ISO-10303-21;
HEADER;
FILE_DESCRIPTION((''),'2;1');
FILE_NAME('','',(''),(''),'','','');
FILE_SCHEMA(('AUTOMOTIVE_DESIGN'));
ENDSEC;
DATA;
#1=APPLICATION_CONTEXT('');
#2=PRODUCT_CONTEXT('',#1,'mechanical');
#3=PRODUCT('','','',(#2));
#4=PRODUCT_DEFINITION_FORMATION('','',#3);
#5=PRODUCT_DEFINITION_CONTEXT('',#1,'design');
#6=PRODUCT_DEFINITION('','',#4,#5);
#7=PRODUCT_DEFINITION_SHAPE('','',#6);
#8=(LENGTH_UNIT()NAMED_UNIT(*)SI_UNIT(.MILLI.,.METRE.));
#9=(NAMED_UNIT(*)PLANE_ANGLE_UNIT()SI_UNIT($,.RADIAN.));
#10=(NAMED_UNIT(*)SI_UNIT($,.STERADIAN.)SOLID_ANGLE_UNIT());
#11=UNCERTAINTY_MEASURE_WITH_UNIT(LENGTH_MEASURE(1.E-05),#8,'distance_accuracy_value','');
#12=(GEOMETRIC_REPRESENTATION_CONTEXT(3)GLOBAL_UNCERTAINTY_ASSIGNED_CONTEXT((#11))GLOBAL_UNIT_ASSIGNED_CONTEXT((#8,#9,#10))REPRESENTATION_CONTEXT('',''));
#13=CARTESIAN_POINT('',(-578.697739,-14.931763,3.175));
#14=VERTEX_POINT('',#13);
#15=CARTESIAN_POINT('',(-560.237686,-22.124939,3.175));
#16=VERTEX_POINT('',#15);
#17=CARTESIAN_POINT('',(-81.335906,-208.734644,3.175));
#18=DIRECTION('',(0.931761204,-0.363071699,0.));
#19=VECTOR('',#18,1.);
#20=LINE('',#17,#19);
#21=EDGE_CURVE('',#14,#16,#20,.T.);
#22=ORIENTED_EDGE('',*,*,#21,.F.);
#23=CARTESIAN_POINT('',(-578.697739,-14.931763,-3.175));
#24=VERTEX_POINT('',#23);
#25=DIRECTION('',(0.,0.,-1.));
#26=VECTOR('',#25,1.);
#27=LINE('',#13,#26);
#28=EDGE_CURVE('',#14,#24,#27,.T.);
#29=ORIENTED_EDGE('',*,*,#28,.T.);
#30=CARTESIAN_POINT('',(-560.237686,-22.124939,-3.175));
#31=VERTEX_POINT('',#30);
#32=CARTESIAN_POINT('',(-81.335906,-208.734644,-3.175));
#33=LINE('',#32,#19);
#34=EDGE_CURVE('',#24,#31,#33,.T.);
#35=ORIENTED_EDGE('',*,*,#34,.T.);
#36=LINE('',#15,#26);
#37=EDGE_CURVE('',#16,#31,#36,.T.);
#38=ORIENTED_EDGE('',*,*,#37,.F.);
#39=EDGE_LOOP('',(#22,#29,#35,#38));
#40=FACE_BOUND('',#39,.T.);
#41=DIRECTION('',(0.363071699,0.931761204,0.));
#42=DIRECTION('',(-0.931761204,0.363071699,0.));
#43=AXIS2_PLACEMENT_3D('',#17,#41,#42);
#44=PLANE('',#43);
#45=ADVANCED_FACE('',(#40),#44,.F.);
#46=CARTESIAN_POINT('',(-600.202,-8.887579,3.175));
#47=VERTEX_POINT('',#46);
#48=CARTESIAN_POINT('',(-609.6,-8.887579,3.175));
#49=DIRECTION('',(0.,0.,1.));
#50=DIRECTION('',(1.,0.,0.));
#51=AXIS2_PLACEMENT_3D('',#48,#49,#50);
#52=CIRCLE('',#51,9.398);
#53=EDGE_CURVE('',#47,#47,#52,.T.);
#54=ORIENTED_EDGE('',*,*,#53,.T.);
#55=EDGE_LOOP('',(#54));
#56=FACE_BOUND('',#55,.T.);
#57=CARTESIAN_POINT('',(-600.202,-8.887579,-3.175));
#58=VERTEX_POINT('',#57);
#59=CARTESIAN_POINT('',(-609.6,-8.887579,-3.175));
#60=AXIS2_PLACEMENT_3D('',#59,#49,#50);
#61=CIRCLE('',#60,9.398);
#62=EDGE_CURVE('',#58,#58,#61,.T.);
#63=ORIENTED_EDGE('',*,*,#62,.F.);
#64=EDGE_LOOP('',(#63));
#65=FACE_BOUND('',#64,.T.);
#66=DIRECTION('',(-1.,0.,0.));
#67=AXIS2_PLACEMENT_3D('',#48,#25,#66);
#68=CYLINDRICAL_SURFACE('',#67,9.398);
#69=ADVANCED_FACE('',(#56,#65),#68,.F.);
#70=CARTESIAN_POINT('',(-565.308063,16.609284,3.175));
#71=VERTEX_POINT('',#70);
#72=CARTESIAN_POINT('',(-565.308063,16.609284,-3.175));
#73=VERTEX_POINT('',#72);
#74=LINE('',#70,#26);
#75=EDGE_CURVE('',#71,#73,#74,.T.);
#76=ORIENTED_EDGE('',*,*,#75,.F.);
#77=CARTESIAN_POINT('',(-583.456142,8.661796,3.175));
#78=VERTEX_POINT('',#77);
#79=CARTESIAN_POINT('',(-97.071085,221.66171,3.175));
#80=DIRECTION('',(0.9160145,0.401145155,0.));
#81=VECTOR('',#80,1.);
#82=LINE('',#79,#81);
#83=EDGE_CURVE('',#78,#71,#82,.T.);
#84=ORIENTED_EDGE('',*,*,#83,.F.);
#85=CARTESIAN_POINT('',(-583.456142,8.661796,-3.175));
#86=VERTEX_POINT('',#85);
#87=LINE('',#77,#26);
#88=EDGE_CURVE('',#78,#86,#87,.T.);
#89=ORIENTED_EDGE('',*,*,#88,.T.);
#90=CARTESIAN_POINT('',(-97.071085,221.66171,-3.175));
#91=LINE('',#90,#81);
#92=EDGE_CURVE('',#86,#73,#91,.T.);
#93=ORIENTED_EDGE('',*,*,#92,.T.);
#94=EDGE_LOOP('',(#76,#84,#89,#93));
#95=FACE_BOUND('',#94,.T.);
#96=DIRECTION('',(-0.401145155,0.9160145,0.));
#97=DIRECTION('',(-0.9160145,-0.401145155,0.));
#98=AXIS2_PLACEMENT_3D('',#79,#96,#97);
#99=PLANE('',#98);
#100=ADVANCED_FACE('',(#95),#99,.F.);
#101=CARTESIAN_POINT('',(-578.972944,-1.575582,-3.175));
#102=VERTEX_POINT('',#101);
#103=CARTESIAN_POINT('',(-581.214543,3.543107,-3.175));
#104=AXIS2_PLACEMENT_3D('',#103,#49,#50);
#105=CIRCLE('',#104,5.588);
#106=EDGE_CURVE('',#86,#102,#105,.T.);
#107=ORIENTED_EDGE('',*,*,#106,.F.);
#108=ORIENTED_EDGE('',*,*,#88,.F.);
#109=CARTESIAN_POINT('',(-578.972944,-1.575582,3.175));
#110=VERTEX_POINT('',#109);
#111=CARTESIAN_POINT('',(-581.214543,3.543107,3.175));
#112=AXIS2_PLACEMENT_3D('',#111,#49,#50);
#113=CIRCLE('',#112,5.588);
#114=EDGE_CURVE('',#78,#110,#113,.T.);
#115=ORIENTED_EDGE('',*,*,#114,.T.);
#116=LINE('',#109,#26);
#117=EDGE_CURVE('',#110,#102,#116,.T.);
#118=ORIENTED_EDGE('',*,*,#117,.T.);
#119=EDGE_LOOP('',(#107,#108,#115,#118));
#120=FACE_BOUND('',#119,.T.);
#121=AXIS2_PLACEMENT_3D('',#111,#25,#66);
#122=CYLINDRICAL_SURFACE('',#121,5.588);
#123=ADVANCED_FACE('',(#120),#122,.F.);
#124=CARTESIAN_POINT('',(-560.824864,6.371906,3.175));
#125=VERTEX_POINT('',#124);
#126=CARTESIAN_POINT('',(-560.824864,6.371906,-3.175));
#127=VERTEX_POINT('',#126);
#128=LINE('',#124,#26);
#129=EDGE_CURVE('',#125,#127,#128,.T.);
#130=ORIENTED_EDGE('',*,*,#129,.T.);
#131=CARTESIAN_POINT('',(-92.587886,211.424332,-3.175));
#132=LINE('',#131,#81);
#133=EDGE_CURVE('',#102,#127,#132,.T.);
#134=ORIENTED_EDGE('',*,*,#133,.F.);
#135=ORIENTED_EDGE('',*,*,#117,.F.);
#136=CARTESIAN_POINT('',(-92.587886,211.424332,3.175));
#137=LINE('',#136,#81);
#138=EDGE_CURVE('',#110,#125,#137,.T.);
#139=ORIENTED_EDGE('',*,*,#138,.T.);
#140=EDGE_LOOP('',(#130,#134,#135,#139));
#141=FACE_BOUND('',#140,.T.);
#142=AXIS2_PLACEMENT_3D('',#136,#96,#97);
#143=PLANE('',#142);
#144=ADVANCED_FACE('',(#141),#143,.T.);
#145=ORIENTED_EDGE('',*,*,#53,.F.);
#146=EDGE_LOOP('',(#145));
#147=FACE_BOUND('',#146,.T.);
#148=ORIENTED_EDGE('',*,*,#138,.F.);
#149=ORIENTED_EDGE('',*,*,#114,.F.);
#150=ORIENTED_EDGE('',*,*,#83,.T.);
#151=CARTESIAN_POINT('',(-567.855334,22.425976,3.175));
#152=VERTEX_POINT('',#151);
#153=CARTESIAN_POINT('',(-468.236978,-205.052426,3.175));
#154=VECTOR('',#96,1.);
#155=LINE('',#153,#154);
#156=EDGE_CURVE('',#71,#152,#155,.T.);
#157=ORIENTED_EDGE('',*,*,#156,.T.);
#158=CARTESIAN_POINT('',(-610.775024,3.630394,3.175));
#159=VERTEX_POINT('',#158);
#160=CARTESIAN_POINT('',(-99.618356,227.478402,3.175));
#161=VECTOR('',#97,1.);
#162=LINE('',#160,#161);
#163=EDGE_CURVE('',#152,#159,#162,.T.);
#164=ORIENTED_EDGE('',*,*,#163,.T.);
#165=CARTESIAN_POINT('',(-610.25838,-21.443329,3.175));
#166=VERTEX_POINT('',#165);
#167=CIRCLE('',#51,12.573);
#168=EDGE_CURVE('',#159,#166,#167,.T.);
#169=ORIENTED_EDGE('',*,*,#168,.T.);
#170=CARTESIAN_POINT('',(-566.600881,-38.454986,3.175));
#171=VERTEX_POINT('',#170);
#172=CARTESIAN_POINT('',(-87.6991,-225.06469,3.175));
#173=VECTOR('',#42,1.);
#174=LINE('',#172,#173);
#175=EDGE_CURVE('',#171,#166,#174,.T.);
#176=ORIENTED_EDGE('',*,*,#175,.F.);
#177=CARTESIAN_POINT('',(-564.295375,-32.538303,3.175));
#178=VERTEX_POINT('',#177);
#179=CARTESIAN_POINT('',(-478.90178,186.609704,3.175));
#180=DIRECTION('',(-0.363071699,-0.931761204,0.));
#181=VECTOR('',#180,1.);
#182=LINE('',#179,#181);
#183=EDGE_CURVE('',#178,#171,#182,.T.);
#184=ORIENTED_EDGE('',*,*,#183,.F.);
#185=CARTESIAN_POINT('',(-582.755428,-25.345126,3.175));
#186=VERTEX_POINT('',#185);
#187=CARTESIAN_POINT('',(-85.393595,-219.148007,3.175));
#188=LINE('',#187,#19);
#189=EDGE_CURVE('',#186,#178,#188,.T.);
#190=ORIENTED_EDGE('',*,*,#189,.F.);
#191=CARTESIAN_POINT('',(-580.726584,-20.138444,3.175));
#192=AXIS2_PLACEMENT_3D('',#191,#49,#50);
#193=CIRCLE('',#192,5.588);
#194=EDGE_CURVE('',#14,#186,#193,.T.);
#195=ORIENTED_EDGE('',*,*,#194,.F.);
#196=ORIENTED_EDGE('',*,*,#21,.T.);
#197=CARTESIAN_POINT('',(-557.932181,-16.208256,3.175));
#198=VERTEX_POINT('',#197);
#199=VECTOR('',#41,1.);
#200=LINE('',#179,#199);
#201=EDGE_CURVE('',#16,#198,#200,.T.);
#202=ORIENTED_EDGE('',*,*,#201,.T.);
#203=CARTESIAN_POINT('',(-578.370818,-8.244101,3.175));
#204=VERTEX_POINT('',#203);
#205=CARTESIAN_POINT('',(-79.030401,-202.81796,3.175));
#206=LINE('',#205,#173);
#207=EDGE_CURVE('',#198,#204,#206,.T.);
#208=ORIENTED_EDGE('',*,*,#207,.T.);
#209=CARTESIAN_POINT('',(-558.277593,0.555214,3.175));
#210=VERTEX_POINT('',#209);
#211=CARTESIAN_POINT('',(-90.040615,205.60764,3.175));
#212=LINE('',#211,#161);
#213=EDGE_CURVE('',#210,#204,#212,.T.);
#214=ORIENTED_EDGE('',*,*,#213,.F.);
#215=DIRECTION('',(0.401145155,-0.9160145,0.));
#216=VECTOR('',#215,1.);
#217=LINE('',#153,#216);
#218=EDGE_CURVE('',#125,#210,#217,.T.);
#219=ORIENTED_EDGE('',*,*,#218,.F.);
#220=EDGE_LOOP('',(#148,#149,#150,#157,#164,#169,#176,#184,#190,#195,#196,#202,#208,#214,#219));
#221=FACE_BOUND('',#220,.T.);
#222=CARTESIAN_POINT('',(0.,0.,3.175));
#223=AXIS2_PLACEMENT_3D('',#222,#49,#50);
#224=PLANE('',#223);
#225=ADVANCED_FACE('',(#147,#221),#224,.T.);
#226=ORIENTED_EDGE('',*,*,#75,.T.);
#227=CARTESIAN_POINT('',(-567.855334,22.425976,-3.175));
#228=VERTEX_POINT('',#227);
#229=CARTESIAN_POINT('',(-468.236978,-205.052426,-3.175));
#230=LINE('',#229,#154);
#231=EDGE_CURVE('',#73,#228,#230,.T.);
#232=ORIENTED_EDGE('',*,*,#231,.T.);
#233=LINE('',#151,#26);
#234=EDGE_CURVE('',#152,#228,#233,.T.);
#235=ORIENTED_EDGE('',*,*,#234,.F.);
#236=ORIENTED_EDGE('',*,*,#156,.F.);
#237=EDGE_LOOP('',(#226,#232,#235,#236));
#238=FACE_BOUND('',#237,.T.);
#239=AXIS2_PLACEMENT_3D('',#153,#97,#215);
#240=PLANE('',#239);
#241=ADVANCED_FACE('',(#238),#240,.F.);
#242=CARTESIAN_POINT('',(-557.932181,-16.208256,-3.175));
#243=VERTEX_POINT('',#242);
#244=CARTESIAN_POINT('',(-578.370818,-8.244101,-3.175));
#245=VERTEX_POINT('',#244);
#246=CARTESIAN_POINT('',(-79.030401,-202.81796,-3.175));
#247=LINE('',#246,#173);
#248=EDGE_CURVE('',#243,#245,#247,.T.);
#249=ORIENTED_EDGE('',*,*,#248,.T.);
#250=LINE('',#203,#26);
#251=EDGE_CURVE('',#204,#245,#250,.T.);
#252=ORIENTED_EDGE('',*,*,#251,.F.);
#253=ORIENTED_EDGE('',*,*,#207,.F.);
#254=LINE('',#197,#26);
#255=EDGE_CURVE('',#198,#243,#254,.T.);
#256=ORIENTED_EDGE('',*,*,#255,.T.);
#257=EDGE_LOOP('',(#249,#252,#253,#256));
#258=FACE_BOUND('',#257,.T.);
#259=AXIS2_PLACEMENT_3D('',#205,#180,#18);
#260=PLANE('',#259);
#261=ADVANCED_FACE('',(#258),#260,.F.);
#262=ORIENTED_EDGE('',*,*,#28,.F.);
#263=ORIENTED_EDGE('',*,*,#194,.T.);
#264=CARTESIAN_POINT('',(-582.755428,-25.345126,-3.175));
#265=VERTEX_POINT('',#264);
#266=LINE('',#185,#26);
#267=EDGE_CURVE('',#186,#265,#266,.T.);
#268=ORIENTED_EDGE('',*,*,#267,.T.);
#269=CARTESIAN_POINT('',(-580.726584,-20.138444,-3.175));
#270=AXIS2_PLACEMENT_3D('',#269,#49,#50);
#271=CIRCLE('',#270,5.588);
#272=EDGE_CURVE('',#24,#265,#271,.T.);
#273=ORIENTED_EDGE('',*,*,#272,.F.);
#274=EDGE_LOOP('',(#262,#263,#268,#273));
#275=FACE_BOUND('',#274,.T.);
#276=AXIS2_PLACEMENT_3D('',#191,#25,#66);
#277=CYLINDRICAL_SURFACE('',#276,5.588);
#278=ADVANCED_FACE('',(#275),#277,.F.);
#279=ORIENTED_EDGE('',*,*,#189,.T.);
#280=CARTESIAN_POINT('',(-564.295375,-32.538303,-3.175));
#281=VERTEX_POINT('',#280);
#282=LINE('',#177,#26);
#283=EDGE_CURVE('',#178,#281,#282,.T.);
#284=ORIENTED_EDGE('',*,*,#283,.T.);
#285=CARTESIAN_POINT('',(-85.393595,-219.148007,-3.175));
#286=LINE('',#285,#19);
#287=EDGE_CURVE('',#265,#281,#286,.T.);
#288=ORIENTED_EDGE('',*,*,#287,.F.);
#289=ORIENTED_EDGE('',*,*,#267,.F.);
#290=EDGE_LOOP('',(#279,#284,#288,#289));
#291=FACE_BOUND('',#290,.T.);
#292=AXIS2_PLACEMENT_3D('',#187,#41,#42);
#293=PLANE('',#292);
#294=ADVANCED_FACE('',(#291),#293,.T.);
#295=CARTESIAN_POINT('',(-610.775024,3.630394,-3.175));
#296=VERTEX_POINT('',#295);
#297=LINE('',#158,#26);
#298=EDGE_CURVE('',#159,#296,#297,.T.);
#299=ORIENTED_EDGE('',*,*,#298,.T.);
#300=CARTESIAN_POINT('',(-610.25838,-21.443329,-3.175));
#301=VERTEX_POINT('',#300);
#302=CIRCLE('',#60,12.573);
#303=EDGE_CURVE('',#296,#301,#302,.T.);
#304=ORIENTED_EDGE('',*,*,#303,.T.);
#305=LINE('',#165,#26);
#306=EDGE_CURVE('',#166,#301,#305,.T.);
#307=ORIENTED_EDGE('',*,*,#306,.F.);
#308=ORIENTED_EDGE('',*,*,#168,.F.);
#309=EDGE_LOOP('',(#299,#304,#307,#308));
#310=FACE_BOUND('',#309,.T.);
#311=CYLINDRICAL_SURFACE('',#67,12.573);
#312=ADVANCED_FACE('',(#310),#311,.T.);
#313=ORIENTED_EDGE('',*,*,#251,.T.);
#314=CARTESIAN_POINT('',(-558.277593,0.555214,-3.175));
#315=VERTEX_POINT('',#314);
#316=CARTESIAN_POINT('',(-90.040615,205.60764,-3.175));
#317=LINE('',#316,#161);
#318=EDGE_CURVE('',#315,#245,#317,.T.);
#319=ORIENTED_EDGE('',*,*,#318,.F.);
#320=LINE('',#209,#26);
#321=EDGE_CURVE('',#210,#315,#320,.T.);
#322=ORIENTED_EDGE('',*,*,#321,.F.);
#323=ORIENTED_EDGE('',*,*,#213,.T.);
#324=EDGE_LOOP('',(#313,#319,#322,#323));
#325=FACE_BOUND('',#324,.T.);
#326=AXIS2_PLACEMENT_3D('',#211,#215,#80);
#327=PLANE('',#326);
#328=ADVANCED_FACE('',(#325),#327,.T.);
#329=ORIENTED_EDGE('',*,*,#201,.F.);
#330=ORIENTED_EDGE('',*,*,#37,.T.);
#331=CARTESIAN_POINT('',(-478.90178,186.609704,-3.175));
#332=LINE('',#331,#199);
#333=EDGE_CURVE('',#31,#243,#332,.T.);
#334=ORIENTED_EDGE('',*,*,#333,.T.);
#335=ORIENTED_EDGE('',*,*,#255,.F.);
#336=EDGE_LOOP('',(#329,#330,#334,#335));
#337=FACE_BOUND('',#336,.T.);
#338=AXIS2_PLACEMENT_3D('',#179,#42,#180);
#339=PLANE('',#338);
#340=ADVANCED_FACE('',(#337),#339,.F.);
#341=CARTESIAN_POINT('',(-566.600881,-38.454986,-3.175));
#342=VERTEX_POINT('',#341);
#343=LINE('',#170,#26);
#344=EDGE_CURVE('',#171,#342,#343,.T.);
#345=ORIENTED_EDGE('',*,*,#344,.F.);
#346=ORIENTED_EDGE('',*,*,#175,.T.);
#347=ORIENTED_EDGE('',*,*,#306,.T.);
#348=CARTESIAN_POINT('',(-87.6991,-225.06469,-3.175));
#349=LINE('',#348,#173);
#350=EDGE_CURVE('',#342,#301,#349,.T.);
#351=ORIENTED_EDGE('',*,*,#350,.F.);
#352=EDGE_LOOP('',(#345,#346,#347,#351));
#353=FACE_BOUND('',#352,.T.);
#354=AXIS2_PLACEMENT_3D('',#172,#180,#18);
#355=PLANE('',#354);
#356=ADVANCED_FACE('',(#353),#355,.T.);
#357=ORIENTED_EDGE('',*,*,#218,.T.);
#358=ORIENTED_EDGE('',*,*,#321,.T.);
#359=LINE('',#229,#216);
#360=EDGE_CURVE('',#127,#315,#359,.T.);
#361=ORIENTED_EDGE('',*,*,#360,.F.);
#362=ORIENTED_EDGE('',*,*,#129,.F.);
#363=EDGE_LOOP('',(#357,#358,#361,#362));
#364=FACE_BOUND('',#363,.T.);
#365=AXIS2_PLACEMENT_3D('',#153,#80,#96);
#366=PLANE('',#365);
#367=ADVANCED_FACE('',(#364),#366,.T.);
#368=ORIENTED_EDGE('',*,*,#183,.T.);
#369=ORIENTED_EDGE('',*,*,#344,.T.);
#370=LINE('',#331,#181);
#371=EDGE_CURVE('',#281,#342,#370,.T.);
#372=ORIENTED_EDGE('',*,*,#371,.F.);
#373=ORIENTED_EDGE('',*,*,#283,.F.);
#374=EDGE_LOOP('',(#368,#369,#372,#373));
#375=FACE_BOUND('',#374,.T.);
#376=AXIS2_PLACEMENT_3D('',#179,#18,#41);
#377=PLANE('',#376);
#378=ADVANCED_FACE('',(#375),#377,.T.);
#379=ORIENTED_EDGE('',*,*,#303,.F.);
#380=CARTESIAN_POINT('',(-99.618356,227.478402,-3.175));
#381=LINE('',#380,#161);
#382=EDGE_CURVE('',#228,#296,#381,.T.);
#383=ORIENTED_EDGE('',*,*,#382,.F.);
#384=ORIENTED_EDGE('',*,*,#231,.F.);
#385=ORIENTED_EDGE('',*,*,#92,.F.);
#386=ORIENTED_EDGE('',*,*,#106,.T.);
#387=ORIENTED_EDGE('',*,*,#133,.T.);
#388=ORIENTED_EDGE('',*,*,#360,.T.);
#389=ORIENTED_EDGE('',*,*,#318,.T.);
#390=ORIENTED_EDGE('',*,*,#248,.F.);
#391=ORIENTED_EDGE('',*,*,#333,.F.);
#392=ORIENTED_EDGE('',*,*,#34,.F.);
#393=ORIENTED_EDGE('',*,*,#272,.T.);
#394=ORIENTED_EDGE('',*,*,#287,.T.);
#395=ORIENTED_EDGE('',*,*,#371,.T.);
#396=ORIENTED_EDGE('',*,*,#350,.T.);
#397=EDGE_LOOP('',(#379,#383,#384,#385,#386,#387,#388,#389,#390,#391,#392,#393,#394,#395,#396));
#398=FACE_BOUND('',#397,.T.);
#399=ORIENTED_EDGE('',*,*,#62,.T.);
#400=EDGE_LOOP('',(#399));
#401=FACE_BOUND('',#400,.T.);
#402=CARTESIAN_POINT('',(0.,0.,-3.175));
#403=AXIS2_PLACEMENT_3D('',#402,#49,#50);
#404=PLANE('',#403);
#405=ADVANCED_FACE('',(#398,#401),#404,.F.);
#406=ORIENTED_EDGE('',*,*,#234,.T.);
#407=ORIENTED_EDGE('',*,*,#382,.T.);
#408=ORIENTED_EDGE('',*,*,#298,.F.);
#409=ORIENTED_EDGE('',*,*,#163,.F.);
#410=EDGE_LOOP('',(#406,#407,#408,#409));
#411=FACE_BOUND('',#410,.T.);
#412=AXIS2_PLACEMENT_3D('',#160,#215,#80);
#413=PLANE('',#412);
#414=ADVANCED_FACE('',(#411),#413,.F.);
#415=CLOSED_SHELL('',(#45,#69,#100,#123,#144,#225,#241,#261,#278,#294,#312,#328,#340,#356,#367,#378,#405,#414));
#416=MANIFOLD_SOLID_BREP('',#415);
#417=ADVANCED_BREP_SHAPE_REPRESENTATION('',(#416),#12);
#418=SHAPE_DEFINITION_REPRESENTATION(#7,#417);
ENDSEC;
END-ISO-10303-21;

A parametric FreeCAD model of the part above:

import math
import FreeCAD as App
import Part
import Sketcher

V = App.Vector
Q = App.Units.Quantity

doc = App.newDocument("Part")
body = doc.addObject("PartDesign::Body", "Body")

sketch1 = doc.addObject("Sketcher::SketchObject", "Sketch")
body.addObject(sketch1)
sketch1.AttachmentSupport = (doc.XY_Plane, [""])
sketch1.MapMode = "FlatFace"
sketch1.addGeometry(Part.ArcOfCircle(Part.Circle(V(-581, 4, 0), V(0, 0, 1), 6), math.radians(114), math.radians(294)), False)
sketch1.addGeometry(Part.LineSegment(V(-583, 9, 0), V(-565, 17, 0)), False)
sketch1.addGeometry(Part.LineSegment(V(-565, 17, 0), V(-568, 22, 0)), False)
sketch1.addGeometry(Part.LineSegment(V(-568, 22, 0), V(-611, 4, 0)), False)
sketch1.addGeometry(Part.ArcOfCircle(Part.Circle(V(-610, -9, 0), V(0, 0, 1), 13), math.radians(95), math.radians(267)), False)
sketch1.addGeometry(Part.LineSegment(V(-610, -21, 0), V(-567, -38, 0)), False)
sketch1.addGeometry(Part.LineSegment(V(-567, -38, 0), V(-564, -33, 0)), False)
sketch1.addGeometry(Part.LineSegment(V(-564, -33, 0), V(-583, -25, 0)), False)
sketch1.addGeometry(Part.ArcOfCircle(Part.Circle(V(-581, -20, 0), V(0, 0, 1), 6), math.radians(69), math.radians(249)), False)
sketch1.addGeometry(Part.LineSegment(V(-579, -15, 0), V(-560, -22, 0)), False)
sketch1.addGeometry(Part.LineSegment(V(-560, -22, 0), V(-558, -16, 0)), False)
sketch1.addGeometry(Part.LineSegment(V(-558, -16, 0), V(-578, -8, 0)), False)
sketch1.addGeometry(Part.LineSegment(V(-578, -8, 0), V(-558, 1, 0)), False)
sketch1.addGeometry(Part.LineSegment(V(-558, 1, 0), V(-561, 6, 0)), False)
sketch1.addGeometry(Part.LineSegment(V(-561, 6, 0), V(-579, -2, 0)), False)
sketch1.addGeometry(Part.Circle(V(-610, -9, 0), V(0, 0, 1), 9), False)
sketch1.addConstraint(Sketcher.Constraint("Tangent", 0, 1, 1, 1))
sketch1.addConstraint(Sketcher.Constraint("Coincident", 1, 2, 2, 1))
sketch1.addConstraint(Sketcher.Constraint("Coincident", 2, 2, 3, 1))
sketch1.addConstraint(Sketcher.Constraint("Coincident", 3, 2, 4, 1))
sketch1.addConstraint(Sketcher.Constraint("Coincident", 4, 2, 5, 1))
sketch1.addConstraint(Sketcher.Constraint("Coincident", 5, 2, 6, 1))
sketch1.addConstraint(Sketcher.Constraint("Coincident", 6, 2, 7, 1))
sketch1.addConstraint(Sketcher.Constraint("Tangent", 7, 2, 8, 2))
sketch1.addConstraint(Sketcher.Constraint("Tangent", 8, 1, 9, 1))
sketch1.addConstraint(Sketcher.Constraint("Coincident", 9, 2, 10, 1))
sketch1.addConstraint(Sketcher.Constraint("Coincident", 10, 2, 11, 1))
sketch1.addConstraint(Sketcher.Constraint("Coincident", 11, 2, 12, 1))
sketch1.addConstraint(Sketcher.Constraint("Coincident", 12, 2, 13, 1))
sketch1.addConstraint(Sketcher.Constraint("Coincident", 13, 2, 14, 1))
sketch1.addConstraint(Sketcher.Constraint("Tangent", 14, 2, 0, 2))
sketch1.addConstraint(Sketcher.Constraint("Coincident", 15, 3, 4, 3))
sketch1.addConstraint(Sketcher.Constraint("Equal", 0, 8))
sketch1.addConstraint(Sketcher.Constraint("Perpendicular", 1, 2))
sketch1.addConstraint(Sketcher.Constraint("Perpendicular", 2, 3))
sketch1.addConstraint(Sketcher.Constraint("Perpendicular", 5, 6))
sketch1.addConstraint(Sketcher.Constraint("Perpendicular", 6, 7))
sketch1.addConstraint(Sketcher.Constraint("Parallel", 7, 9))
sketch1.addConstraint(Sketcher.Constraint("Perpendicular", 9, 10))
sketch1.addConstraint(Sketcher.Constraint("Perpendicular", 10, 11))
sketch1.addConstraint(Sketcher.Constraint("Parallel", 3, 12))
sketch1.addConstraint(Sketcher.Constraint("Perpendicular", 12, 13))
sketch1.addConstraint(Sketcher.Constraint("Perpendicular", 13, 14))
sketch1.addConstraint(Sketcher.Constraint("Equal", 3, 5))
sketch1.addConstraint(Sketcher.Constraint("Equal", 2, 6))
sketch1.addConstraint(Sketcher.Constraint("Equal", 1, 7))
sketch1.addConstraint(Sketcher.Constraint("Equal", 7, 9))
sketch1.addConstraint(Sketcher.Constraint("Equal", 6, 10))
sketch1.addConstraint(Sketcher.Constraint("Equal", 11, 12))
sketch1.addConstraint(Sketcher.Constraint("Equal", 10, 13))
sketch1.addConstraint(Sketcher.Constraint("Equal", 9, 14))
sketch1.addConstraint(Sketcher.Constraint("Diameter", 15, Q("0.74 in")))
sketch1.addConstraint(Sketcher.Constraint("Radius", 0, Q("0.22 in")))
sketch1.addConstraint(Sketcher.Constraint("DistanceX", 4, 3, -1, 1, Q("24 in")))
sketch1.addConstraint(Sketcher.Constraint("Radius", 4, Q("0.495 in")))
sketch1.addConstraint(Sketcher.Constraint("Distance", 1, Q("0.78 in")))
sketch1.addConstraint(Sketcher.Constraint("Distance", 2, Q("0.25 in")))
sketch1.addConstraint(Sketcher.Constraint("DistanceY", 11, 2, -1, 1, 8.244101))
sketch1.addConstraint(Sketcher.Constraint("DistanceX", 0, 1, 0, 3, 2.241599))
sketch1.addConstraint(Sketcher.Constraint("DistanceX", 4, 2, 5, 2, 43.657499))
sketch1.addConstraint(Sketcher.Constraint("DistanceY", 6, 2, 0, 1, 41.200099))
sketch1.addConstraint(Sketcher.Constraint("DistanceX", 5, 2, 10, 2, 8.6687))
pad1 = doc.addObject("PartDesign::Pad", "Pad")
body.addObject(pad1)
pad1.Profile = sketch1
pad1.Length = Q("0.25 in")
pad1.Midplane = True

doc.recompute()
